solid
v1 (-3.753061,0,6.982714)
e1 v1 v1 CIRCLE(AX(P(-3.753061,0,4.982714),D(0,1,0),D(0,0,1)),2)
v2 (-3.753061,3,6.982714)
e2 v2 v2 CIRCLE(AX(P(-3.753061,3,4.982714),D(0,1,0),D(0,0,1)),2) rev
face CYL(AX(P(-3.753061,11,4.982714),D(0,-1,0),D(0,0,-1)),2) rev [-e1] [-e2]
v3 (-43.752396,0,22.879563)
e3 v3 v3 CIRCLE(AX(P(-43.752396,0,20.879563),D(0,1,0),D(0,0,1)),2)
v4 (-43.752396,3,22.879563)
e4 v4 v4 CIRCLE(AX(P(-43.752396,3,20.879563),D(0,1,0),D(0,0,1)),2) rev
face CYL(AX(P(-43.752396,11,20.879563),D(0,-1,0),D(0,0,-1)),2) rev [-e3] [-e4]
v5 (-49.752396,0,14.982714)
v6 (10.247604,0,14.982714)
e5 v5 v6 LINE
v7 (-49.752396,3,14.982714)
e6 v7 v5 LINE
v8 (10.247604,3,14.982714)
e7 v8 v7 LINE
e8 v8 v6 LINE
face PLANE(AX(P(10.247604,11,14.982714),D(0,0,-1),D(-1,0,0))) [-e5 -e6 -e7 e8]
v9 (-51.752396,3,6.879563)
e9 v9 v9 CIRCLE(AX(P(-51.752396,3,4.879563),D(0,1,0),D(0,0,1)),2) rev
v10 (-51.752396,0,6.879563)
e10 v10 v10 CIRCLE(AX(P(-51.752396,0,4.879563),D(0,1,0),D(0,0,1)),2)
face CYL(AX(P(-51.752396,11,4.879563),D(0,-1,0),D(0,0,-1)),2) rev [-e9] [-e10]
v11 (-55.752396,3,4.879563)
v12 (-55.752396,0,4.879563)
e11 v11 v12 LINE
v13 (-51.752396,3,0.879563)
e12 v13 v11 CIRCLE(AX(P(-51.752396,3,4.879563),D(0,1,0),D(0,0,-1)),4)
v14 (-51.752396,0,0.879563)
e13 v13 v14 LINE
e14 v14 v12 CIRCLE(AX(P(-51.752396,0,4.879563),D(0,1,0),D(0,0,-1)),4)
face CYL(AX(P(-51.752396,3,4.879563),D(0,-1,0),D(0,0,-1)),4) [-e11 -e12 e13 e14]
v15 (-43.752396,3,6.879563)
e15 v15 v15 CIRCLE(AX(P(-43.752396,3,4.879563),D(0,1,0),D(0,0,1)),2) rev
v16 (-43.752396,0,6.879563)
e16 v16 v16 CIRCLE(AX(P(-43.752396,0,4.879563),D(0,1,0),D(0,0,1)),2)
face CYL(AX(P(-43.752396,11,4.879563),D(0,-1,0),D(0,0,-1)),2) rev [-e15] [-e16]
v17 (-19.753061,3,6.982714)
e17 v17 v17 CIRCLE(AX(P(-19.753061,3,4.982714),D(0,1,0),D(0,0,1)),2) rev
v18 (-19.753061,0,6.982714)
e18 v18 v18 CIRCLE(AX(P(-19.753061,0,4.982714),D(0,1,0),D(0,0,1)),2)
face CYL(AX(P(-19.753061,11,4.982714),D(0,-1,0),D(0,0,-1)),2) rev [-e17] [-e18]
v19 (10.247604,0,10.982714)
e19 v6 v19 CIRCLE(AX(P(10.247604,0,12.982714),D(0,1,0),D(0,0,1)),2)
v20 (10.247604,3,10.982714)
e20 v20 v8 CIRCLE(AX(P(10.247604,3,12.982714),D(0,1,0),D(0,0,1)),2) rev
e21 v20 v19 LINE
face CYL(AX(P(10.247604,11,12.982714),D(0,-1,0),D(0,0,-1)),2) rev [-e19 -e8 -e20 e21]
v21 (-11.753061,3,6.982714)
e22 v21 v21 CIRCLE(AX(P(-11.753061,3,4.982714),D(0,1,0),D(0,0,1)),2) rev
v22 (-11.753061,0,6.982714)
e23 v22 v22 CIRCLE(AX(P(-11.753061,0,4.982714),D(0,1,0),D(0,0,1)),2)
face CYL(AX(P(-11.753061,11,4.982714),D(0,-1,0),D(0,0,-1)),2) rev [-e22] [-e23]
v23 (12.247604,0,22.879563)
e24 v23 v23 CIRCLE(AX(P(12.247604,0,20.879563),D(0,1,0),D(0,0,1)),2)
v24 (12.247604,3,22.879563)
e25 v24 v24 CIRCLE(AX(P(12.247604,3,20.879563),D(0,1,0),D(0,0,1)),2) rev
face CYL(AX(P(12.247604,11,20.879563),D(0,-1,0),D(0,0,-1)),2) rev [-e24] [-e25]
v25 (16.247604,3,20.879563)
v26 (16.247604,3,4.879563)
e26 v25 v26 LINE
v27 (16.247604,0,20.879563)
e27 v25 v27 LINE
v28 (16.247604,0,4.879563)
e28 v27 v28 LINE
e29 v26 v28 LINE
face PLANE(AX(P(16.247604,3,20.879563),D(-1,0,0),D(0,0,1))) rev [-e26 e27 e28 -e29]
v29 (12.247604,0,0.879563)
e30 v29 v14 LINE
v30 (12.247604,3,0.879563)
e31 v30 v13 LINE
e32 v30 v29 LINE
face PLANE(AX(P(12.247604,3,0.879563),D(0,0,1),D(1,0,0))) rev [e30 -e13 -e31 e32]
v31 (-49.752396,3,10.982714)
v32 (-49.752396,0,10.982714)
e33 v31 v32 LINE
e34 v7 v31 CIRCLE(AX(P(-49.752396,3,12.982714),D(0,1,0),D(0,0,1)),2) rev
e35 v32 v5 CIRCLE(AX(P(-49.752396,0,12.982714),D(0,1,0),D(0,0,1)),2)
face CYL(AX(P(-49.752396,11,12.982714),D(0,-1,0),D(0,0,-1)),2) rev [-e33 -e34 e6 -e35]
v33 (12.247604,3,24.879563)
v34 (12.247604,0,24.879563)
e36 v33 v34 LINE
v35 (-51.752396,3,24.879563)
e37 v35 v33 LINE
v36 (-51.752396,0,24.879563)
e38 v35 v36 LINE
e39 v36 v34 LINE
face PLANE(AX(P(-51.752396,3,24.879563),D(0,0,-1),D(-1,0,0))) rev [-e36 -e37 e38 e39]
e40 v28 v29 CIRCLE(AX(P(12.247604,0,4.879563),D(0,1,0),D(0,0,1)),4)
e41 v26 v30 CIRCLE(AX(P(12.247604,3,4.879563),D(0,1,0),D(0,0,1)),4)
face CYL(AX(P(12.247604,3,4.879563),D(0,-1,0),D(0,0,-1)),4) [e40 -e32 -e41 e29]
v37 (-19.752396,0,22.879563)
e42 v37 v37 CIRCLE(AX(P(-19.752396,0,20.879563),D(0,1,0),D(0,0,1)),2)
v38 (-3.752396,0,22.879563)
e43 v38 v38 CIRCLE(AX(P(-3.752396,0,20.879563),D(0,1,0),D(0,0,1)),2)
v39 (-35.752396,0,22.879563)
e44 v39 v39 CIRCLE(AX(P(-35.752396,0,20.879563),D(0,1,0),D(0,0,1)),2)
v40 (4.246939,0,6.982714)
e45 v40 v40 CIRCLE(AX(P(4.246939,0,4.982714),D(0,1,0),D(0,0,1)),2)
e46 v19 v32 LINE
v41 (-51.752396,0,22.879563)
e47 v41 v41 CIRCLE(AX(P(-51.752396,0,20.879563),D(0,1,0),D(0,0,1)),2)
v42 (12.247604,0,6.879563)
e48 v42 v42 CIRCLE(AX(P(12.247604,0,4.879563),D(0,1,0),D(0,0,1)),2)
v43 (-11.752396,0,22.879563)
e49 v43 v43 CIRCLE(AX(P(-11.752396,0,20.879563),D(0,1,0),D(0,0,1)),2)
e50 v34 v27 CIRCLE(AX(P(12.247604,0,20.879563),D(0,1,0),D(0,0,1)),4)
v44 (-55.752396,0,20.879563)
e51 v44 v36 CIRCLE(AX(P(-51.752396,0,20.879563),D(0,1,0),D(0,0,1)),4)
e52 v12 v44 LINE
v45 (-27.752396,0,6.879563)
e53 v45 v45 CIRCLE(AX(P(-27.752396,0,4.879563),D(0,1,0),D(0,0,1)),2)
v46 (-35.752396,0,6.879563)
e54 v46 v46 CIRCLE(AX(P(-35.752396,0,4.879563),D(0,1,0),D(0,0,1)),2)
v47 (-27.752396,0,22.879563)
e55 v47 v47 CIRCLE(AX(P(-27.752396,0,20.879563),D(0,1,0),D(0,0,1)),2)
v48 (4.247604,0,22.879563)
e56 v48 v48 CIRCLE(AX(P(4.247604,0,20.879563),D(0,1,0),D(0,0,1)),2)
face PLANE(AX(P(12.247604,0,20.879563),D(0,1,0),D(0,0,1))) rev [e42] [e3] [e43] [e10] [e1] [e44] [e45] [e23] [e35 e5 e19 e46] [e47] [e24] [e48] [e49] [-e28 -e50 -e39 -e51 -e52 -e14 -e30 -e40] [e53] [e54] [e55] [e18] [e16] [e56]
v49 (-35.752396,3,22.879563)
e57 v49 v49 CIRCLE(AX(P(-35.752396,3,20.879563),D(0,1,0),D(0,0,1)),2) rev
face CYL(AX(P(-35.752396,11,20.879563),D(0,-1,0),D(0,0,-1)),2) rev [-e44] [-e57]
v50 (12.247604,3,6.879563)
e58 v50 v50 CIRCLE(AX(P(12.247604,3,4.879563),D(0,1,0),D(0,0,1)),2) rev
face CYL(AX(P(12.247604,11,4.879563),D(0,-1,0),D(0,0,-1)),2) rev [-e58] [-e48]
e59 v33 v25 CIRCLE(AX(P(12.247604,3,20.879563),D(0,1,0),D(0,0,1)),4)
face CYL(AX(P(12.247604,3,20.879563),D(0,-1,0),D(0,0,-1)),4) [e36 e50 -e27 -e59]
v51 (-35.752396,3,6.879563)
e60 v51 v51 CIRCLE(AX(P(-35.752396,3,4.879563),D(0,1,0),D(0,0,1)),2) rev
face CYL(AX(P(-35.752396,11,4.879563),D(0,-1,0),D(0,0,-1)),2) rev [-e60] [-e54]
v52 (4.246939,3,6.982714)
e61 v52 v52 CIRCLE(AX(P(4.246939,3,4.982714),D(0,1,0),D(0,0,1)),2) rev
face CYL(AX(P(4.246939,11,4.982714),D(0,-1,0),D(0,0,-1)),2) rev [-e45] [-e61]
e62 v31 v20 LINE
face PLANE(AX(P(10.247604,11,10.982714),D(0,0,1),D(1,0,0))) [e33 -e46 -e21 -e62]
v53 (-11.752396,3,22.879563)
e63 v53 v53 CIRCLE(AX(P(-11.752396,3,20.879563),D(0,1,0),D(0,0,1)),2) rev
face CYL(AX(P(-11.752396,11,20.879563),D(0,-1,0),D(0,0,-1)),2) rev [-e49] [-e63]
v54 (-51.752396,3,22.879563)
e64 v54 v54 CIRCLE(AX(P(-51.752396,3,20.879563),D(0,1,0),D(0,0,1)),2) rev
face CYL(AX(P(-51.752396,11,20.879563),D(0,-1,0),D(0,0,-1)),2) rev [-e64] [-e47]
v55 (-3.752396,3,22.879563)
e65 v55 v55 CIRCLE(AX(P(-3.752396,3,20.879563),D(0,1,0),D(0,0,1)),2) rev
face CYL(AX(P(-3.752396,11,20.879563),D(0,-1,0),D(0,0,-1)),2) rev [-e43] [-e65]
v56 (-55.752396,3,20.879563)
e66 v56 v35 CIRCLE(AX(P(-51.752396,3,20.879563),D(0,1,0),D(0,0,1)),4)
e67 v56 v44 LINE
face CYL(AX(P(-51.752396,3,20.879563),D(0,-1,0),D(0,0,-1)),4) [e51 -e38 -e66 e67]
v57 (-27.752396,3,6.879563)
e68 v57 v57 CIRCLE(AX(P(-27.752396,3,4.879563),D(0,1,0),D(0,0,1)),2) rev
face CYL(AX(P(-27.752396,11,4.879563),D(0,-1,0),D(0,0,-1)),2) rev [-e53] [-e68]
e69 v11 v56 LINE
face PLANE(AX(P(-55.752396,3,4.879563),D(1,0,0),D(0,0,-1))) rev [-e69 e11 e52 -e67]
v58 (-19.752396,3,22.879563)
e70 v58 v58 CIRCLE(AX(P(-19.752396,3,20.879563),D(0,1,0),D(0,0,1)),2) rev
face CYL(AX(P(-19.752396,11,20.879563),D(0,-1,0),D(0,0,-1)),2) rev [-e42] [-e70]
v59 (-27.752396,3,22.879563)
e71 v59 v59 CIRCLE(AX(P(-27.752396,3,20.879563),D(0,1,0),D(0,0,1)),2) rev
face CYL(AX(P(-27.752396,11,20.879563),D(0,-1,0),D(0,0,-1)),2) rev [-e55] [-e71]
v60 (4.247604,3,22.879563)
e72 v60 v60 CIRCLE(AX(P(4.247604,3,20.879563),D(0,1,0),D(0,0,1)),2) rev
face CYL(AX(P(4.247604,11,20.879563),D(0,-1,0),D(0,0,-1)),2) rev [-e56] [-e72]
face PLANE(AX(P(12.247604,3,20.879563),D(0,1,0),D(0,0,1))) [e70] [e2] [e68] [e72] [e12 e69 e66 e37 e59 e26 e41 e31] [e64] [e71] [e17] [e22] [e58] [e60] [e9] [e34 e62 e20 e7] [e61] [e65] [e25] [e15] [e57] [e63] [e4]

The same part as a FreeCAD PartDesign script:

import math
import FreeCAD as App
import Part
import Sketcher

V = App.Vector
Q = App.Units.Quantity

doc = App.newDocument("Part")
body = doc.addObject("PartDesign::Body", "Body")

sketch1 = doc.addObject("Sketcher::SketchObject", "Sketch")
body.addObject(sketch1)
sketch1.AttachmentSupport = (doc.XZ_Plane, [""])
sketch1.MapMode = "FlatFace"
sketch1.addGeometry([
    Part.LineSegment(V(-55.8, 4.9, 0), V(-55.8, 20.9, 0)),
    Part.ArcOfCircle(Part.Circle(V(-51.8, 20.9, 0), V(0, 0, 1), 4), math.radians(90), math.radians(180)),
    Part.LineSegment(V(-51.8, 24.9, 0), V(12.2, 24.9, 0)),
    Part.ArcOfCircle(Part.Circle(V(12.2, 20.9, 0), V(0, 0, 1), 4), math.radians(0), math.radians(90)),
    Part.LineSegment(V(16.2, 20.9, 0), V(16.2, 4.9, 0)),
    Part.ArcOfCircle(Part.Circle(V(12.2, 4.9, 0), V(0, 0, 1), 4), math.radians(-90), math.radians(0)),
    Part.LineSegment(V(12.2, 0.9, 0), V(-51.8, 0.9, 0)),
    Part.ArcOfCircle(Part.Circle(V(-51.8, 4.9, 0), V(0, 0, 1), 4), math.radians(-180), math.radians(-90)),
], False)
sketch1.addConstraint([
    Sketcher.Constraint("Tangent", 0, 2, 1, 2),
    Sketcher.Constraint("Tangent", 1, 1, 2, 1),
    Sketcher.Constraint("Tangent", 2, 2, 3, 2),
    Sketcher.Constraint("Tangent", 3, 1, 4, 1),
    Sketcher.Constraint("Tangent", 4, 2, 5, 2),
    Sketcher.Constraint("Tangent", 5, 1, 6, 1),
    Sketcher.Constraint("Tangent", 6, 2, 7, 2),
    Sketcher.Constraint("Tangent", 7, 1, 0, 1),
    Sketcher.Constraint("Vertical", 0),
    Sketcher.Constraint("Horizontal", 2),
    Sketcher.Constraint("Vertical", 4),
    Sketcher.Constraint("Horizontal", 6),
    Sketcher.Constraint("Equal", 1, 3),
    Sketcher.Constraint("Equal", 3, 5),
    Sketcher.Constraint("Equal", 5, 7),
    Sketcher.Constraint("Radius", 1, Q("4 mm")),
    Sketcher.Constraint("DistanceX", 2, 1, 2, 2, Q("64 mm")),
    Sketcher.Constraint("DistanceY", 0, 1, 0, 2, Q("16 mm")),
    Sketcher.Constraint("DistanceX", 1, 3, -1, 1, Q("51.752396 mm")),
    Sketcher.Constraint("DistanceY", -1, 1, 1, 3, Q("20.879563 mm")),
])
pad1 = doc.addObject("PartDesign::Pad", "Pad")
body.addObject(pad1)
pad1.Profile = sketch1
pad1.Length = 3
pad1.Reversed = True

sketch2 = doc.addObject("Sketcher::SketchObject", "Sketch001")
body.addObject(sketch2)
sketch2.AttachmentSupport = (doc.XZ_Plane, [""])
sketch2.MapMode = "FlatFace"
sketch2.addGeometry([
    Part.Circle(V(-51.8, 4.9, 0), V(0, 0, 1), 2),
    Part.Circle(V(-43.8, 4.9, 0), V(0, 0, 1), 2),
    Part.Circle(V(-35.8, 4.9, 0), V(0, 0, 1), 2),
    Part.Circle(V(-27.8, 4.9, 0), V(0, 0, 1), 2),
    Part.Circle(V(-19.8, 5, 0), V(0, 0, 1), 2),
    Part.Circle(V(-11.8, 5, 0), V(0, 0, 1), 2),
    Part.Circle(V(-3.8, 5, 0), V(0, 0, 1), 2),
    Part.Circle(V(4.2, 5, 0), V(0, 0, 1), 2),
    Part.Circle(V(12.2, 4.9, 0), V(0, 0, 1), 2),
    Part.Circle(V(-51.8, 20.9, 0), V(0, 0, 1), 2),
    Part.Circle(V(-43.8, 20.9, 0), V(0, 0, 1), 2),
    Part.Circle(V(-35.8, 20.9, 0), V(0, 0, 1), 2),
    Part.Circle(V(-27.8, 20.9, 0), V(0, 0, 1), 2),
    Part.Circle(V(-19.8, 20.9, 0), V(0, 0, 1), 2),
    Part.Circle(V(-11.8, 20.9, 0), V(0, 0, 1), 2),
    Part.Circle(V(-3.8, 20.9, 0), V(0, 0, 1), 2),
    Part.Circle(V(4.2, 20.9, 0), V(0, 0, 1), 2),
    Part.Circle(V(12.2, 20.9, 0), V(0, 0, 1), 2),
    Part.LineSegment(V(-49.8, 15, 0), V(10.2, 15, 0)),
    Part.ArcOfCircle(Part.Circle(V(10.2, 13, 0), V(0, 0, 1), 2), math.radians(-90), math.radians(90)),
    Part.LineSegment(V(10.2, 11, 0), V(-49.8, 11, 0)),
    Part.ArcOfCircle(Part.Circle(V(-49.8, 13, 0), V(0, 0, 1), 2), math.radians(90), math.radians(270)),
], False)
sketch2.addConstraint([
    Sketcher.Constraint("Tangent", 18, 2, 19, 2),
    Sketcher.Constraint("Tangent", 19, 1, 20, 1),
    Sketcher.Constraint("Tangent", 20, 2, 21, 2),
    Sketcher.Constraint("Tangent", 21, 1, 18, 1),
    Sketcher.Constraint("Horizontal", 18),
    Sketcher.Constraint("Horizontal", 20),
    Sketcher.Constraint("Equal", 0, 1),
    Sketcher.Constraint("Equal", 1, 2),
    Sketcher.Constraint("Equal", 2, 3),
    Sketcher.Constraint("Equal", 3, 4),
    Sketcher.Constraint("Equal", 4, 5),
    Sketcher.Constraint("Equal", 5, 6),
    Sketcher.Constraint("Equal", 6, 7),
    Sketcher.Constraint("Equal", 7, 8),
    Sketcher.Constraint("Equal", 8, 9),
    Sketcher.Constraint("Equal", 9, 10),
    Sketcher.Constraint("Equal", 10, 11),
    Sketcher.Constraint("Equal", 11, 12),
    Sketcher.Constraint("Equal", 12, 13),
    Sketcher.Constraint("Equal", 13, 14),
    Sketcher.Constraint("Equal", 14, 15),
    Sketcher.Constraint("Equal", 15, 16),
    Sketcher.Constraint("Equal", 16, 17),
    Sketcher.Constraint("Equal", 17, 19),
    Sketcher.Constraint("Horizontal", 0, 3, 1, 3),
    Sketcher.Constraint("Horizontal", 1, 3, 2, 3),
    Sketcher.Constraint("Horizontal", 2, 3, 3, 3),
    Sketcher.Constraint("Horizontal", 4, 3, 5, 3),
    Sketcher.Constraint("Horizontal", 5, 3, 6, 3),
    Sketcher.Constraint("Horizontal", 6, 3, 7, 3),
    Sketcher.Constraint("Horizontal", 3, 3, 8, 3),
    Sketcher.Constraint("Horizontal", 9, 3, 10, 3),
    Sketcher.Constraint("Horizontal", 10, 3, 11, 3),
    Sketcher.Constraint("Horizontal", 11, 3, 12, 3),
    Sketcher.Constraint("Horizontal", 12, 3, 13, 3),
    Sketcher.Constraint("Horizontal", 13, 3, 14, 3),
    Sketcher.Constraint("Horizontal", 14, 3, 15, 3),
    Sketcher.Constraint("Horizontal", 15, 3, 16, 3),
    Sketcher.Constraint("Horizontal", 16, 3, 17, 3),
    Sketcher.Constraint("Vertical", 0, 3, 9, 3),
    Sketcher.Constraint("Vertical", 1, 3, 10, 3),
    Sketcher.Constraint("Vertical", 2, 3, 11, 3),
    Sketcher.Constraint("Vertical", 3, 3, 12, 3),
    Sketcher.Constraint("Vertical", 8, 3, 17, 3),
    Sketcher.Constraint("Diameter", 0, Q("4 mm")),
    Sketcher.Constraint("DistanceX", 18, 1, 18, 2, Q("60 mm")),
    Sketcher.Constraint("DistanceX", 0, 3, 1, 3, Q("8 mm")),
    Sketcher.Constraint("DistanceX", 1, 3, 2, 3, Q("8 mm")),
    Sketcher.Constraint("DistanceX", 2, 3, 3, 3, Q("8 mm")),
    Sketcher.Constraint("DistanceX", 4, 3, 5, 3, Q("8 mm")),
    Sketcher.Constraint("DistanceX", 5, 3, 6, 3, Q("8 mm")),
    Sketcher.Constraint("DistanceX", 6, 3, 7, 3, Q("8 mm")),
    Sketcher.Constraint("DistanceX", 3, 3, 8, 3, Q("40 mm")),
    Sketcher.Constraint("DistanceY", 0, 3, 9, 3, Q("16 mm")),
    Sketcher.Constraint("DistanceX", 12, 3, 13, 3, Q("8 mm")),
    Sketcher.Constraint("DistanceX", 13, 3, 14, 3, Q("8 mm")),
    Sketcher.Constraint("DistanceX", 14, 3, 15, 3, Q("8 mm")),
    Sketcher.Constraint("DistanceX", 15, 3, 16, 3, Q("8 mm")),
    Sketcher.Constraint("DistanceX", 19, 3, 17, 3, Q("2 mm")),
    Sketcher.Constraint("DistanceY", 7, 3, 19, 3, Q("8 mm")),
    Sketcher.Constraint("DistanceX", 4, 3, -1, 1, Q("19.753061 mm")),
    Sketcher.Constraint("DistanceY", 3, 3, 4, 3, Q("0.10315 mm")),
    Sketcher.Constraint("DistanceX", 0, 3, -1, 1, Q("51.752396 mm")),
    Sketcher.Constraint("DistanceY", -1, 1, 0, 3, Q("4.879563 mm")),
])
pocket1 = doc.addObject("PartDesign::Pocket", "Pocket")
body.addObject(pocket1)
pocket1.Profile = sketch2
pocket1.Length = 11

doc.recompute()
